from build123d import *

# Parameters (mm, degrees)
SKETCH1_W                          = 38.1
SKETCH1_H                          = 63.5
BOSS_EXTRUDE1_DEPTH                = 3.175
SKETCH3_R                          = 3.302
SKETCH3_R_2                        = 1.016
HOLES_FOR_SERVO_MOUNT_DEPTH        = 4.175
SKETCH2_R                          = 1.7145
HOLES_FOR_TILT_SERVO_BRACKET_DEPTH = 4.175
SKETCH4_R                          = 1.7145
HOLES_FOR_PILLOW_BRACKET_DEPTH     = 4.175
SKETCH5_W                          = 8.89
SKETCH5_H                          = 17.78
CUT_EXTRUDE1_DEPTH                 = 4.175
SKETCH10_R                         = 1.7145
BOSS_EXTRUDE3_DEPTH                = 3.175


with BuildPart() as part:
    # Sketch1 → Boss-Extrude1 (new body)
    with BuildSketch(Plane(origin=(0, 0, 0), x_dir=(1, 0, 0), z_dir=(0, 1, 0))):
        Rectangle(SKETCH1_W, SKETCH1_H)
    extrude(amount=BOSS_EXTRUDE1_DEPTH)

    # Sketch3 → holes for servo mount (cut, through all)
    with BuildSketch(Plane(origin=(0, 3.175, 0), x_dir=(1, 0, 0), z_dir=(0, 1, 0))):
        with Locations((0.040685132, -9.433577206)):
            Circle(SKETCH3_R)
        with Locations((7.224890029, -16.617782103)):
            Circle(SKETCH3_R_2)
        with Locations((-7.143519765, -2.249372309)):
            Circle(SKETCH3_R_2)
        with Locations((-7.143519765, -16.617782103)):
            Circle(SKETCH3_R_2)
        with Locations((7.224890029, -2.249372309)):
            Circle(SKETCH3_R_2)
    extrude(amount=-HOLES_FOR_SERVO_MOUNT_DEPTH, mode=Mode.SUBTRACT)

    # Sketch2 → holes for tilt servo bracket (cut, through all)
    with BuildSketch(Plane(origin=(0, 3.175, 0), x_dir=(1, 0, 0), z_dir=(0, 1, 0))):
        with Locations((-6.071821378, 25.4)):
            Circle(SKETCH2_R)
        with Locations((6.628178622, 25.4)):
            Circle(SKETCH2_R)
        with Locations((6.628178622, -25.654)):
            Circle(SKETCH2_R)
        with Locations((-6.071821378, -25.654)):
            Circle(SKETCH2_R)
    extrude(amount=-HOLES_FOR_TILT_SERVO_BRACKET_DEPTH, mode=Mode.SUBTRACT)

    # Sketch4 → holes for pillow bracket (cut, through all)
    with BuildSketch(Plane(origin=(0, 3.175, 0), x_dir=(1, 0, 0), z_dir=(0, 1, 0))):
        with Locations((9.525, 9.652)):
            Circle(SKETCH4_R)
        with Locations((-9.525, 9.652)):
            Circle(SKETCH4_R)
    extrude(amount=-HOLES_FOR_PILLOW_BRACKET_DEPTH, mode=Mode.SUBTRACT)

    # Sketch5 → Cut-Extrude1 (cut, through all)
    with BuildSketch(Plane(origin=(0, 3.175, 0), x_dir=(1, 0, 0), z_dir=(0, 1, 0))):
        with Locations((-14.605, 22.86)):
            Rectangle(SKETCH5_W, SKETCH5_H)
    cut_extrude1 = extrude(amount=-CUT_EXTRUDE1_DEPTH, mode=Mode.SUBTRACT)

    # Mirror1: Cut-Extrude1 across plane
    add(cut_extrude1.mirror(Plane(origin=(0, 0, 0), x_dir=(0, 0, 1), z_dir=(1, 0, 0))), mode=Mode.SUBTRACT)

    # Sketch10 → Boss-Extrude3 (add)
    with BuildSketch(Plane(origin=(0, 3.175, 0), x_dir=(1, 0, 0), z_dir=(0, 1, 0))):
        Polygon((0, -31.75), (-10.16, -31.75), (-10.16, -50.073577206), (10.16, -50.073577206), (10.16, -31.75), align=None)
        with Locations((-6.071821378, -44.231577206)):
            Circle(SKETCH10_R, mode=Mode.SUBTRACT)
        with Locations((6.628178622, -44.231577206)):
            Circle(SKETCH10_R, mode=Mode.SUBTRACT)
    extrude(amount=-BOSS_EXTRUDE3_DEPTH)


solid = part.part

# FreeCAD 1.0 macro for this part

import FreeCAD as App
import Part
import Sketcher

V = App.Vector
Q = App.Units.Quantity

doc = App.newDocument("Part")
params = doc.addObject("Spreadsheet::Sheet", "Params")
for row, (alias, value) in enumerate([
    ("sketch1_width", "1.5 in"),
    ("sketch1_height", "2.5 in"),
    ("pad1_length", "0.125 in"),
    ("sketch2_diameter", "0.26 in"),
    ("sketch2_diameter2", "0.08 in"),
    ("sketch3_diameter", "0.135 in"),
    ("sketch4_diameter", "0.135 in"),
    ("sketch5_height", "0.7 in"),
    ("sketch5_width", "0.35 in"),
    ("sketch6_diameter", "0.135 in"),
    ("sketch6_width", "0.8 in"),
    ("pad2_length", "0.125 in"),
], start=1):
    params.set(f"A{row}", alias)
    params.set(f"B{row}", "=" + value)
    params.setAlias(f"B{row}", alias)

body = doc.addObject("PartDesign::Body", "Body")

# Sketch on XZ plane
sketch1 = body.newObject("Sketcher::SketchObject", "Sketch")
sketch1.AttachmentSupport = (doc.getObject("XZ_Plane"), [""])
sketch1.MapMode = "FlatFace"
sketch1.addGeometry(Part.LineSegment(V(-19, -32, 0), V(-19, 32, 0)), False)
sketch1.addGeometry(Part.LineSegment(V(-19, 32, 0), V(19, 32, 0)), False)
sketch1.addGeometry(Part.LineSegment(V(19, 32, 0), V(19, -32, 0)), False)
sketch1.addGeometry(Part.LineSegment(V(19, -32, 0), V(-19, -32, 0)), False)
sketch1.addConstraint(Sketcher.Constraint("Coincident", 0, 2, 1, 1))
sketch1.addConstraint(Sketcher.Constraint("Coincident", 1, 2, 2, 1))
sketch1.addConstraint(Sketcher.Constraint("Coincident", 2, 2, 3, 1))
sketch1.addConstraint(Sketcher.Constraint("Coincident", 3, 2, 0, 1))
sketch1.addConstraint(Sketcher.Constraint("Vertical", 0))
sketch1.addConstraint(Sketcher.Constraint("Horizontal", 1))
sketch1.addConstraint(Sketcher.Constraint("Vertical", 2))
sketch1.addConstraint(Sketcher.Constraint("Horizontal", 3))
sketch1.addConstraint(Sketcher.Constraint("Symmetric", 0, 2, 2, 2, -1, 1))
sketch1.addConstraint(Sketcher.Constraint("DistanceX", 1, 1, 1, 2, Q("1.5 in")))
sketch1.addConstraint(Sketcher.Constraint("DistanceY", 0, 1, 0, 2, Q("2.5 in")))
sketch1.setExpression("Constraints[9]", "Params.sketch1_width")
sketch1.setExpression("Constraints[10]", "Params.sketch1_height")
pad1 = body.newObject("PartDesign::Pad", "Pad")
pad1.Profile = sketch1
pad1.setExpression("Length", "Params.pad1_length")
pad1.Reversed = True

# Sketch on XZ plane
sketch2 = body.newObject("Sketcher::SketchObject", "Sketch001")
sketch2.AttachmentSupport = (doc.getObject("XZ_Plane"), [""])
sketch2.MapMode = "FlatFace"
sketch2.AttachmentOffset = App.Placement(V(0, 0, -0.125 * 25.4), App.Rotation())
sketch2.addGeometry(Part.Circle(V(0, 9.4, 0), V(0, 0, 1), 3.3), False)
sketch2.addGeometry(Part.Circle(V(7.2, 16.6, 0), V(0, 0, 1), 1), False)
sketch2.addGeometry(Part.Circle(V(-7.1, 2.2, 0), V(0, 0, 1), 1), False)
sketch2.addGeometry(Part.Circle(V(-7.1, 16.6, 0), V(0, 0, 1), 1), False)
sketch2.addGeometry(Part.Circle(V(7.2, 2.2, 0), V(0, 0, 1), 1), False)
sketch2.addConstraint(Sketcher.Constraint("Equal", 1, 2))
sketch2.addConstraint(Sketcher.Constraint("Equal", 2, 3))
sketch2.addConstraint(Sketcher.Constraint("Equal", 3, 4))
sketch2.addConstraint(Sketcher.Constraint("Horizontal", 1, 3, 3, 3))
sketch2.addConstraint(Sketcher.Constraint("Horizontal", 2, 3, 4, 3))
sketch2.addConstraint(Sketcher.Constraint("Vertical", 2, 3, 3, 3))
sketch2.addConstraint(Sketcher.Constraint("Vertical", 1, 3, 4, 3))
sketch2.addConstraint(Sketcher.Constraint("Diameter", 0, Q("0.26 in")))
sketch2.addConstraint(Sketcher.Constraint("Diameter", 1, Q("0.08 in")))
sketch2.addConstraint(Sketcher.Constraint("DistanceX", -1, 1, 1, 3, Q("7.22489 mm")))
sketch2.addConstraint(Sketcher.Constraint("DistanceX", 2, 3, -1, 1, Q("7.14352 mm")))
sketch2.addConstraint(Sketcher.Constraint("DistanceY", 2, 3, 1, 3, Q("14.36841 mm")))
sketch2.addConstraint(Sketcher.Constraint("DistanceX", -1, 1, 0, 3, Q("0.040685 mm")))
sketch2.addConstraint(Sketcher.Constraint("DistanceY", -1, 1, 0, 3, Q("9.433577 mm")))
sketch2.addConstraint(Sketcher.Constraint("DistanceY", -1, 1, 1, 3, Q("16.617782 mm")))
sketch2.setExpression("Constraints[7]", "Params.sketch2_diameter")
sketch2.setExpression("Constraints[8]", "Params.sketch2_diameter2")
pocket1 = body.newObject("PartDesign::Pocket", "Pocket")
pocket1.Profile = sketch2
pocket1.Type = "ThroughAll"
pocket1.Reversed = True

# Sketch on XZ plane
sketch3 = body.newObject("Sketcher::SketchObject", "Sketch002")
sketch3.AttachmentSupport = (doc.getObject("XZ_Plane"), [""])
sketch3.MapMode = "FlatFace"
sketch3.AttachmentOffset = App.Placement(V(0, 0, -0.125 * 25.4), App.Rotation())
sketch3.addGeometry(Part.Circle(V(-6.1, -25.4, 0), V(0, 0, 1), 1.7), False)
sketch3.addGeometry(Part.Circle(V(6.6, -25.4, 0), V(0, 0, 1), 1.7), False)
sketch3.addGeometry(Part.Circle(V(6.6, 25.7, 0), V(0, 0, 1), 1.7), False)
sketch3.addGeometry(Part.Circle(V(-6.1, 25.7, 0), V(0, 0, 1), 1.7), False)
sketch3.addConstraint(Sketcher.Constraint("Equal", 0, 1))
sketch3.addConstraint(Sketcher.Constraint("Equal", 1, 2))
sketch3.addConstraint(Sketcher.Constraint("Equal", 2, 3))
sketch3.addConstraint(Sketcher.Constraint("Horizontal", 0, 3, 1, 3))
sketch3.addConstraint(Sketcher.Constraint("Horizontal", 2, 3, 3, 3))
sketch3.addConstraint(Sketcher.Constraint("Vertical", 1, 3, 2, 3))
sketch3.addConstraint(Sketcher.Constraint("Vertical", 0, 3, 3, 3))
sketch3.addConstraint(Sketcher.Constraint("Diameter", 0, Q("0.135 in")))
sketch3.addConstraint(Sketcher.Constraint("DistanceY", 0, 3, -1, 1, Q("1 in")))
sketch3.addConstraint(Sketcher.Constraint("DistanceX", 0, 3, 1, 3, Q("0.5 in")))
sketch3.addConstraint(Sketcher.Constraint("DistanceY", -1, 1, 2, 3, Q("1.01 in")))
sketch3.addConstraint(Sketcher.Constraint("DistanceX", 0, 3, -1, 1, Q("6.071821 mm")))
sketch3.setExpression("Constraints[7]", "Params.sketch3_diameter")
pocket2 = body.newObject("PartDesign::Pocket", "Pocket001")
pocket2.Profile = sketch3
pocket2.Type = "ThroughAll"
pocket2.Reversed = True

# Sketch on XZ plane
sketch4 = body.newObject("Sketcher::SketchObject", "Sketch003")
sketch4.AttachmentSupport = (doc.getObject("XZ_Plane"), [""])
sketch4.MapMode = "FlatFace"
sketch4.AttachmentOffset = App.Placement(V(0, 0, -0.125 * 25.4), App.Rotation())
sketch4.addGeometry(Part.Circle(V(9.5, -9.7, 0), V(0, 0, 1), 1.7), False)
sketch4.addGeometry(Part.Circle(V(-9.5, -9.7, 0), V(0, 0, 1), 1.7), False)
sketch4.addConstraint(Sketcher.Constraint("Equal", 0, 1))
sketch4.addConstraint(Sketcher.Constraint("Symmetric", 0, 3, 1, 3, -2))
sketch4.addConstraint(Sketcher.Constraint("Diameter", 0, Q("0.135 in")))
sketch4.addConstraint(Sketcher.Constraint("DistanceY", 0, 3, -1, 1, Q("0.38 in")))
sketch4.addConstraint(Sketcher.Constraint("DistanceX", 1, 3, 0, 3, Q("0.75 in")))
sketch4.setExpression("Constraints[2]", "Params.sketch4_diameter")
pocket3 = body.newObject("PartDesign::Pocket", "Pocket002")
pocket3.Profile = sketch4
pocket3.Type = "ThroughAll"
pocket3.Reversed = True

# Sketch on XZ plane
sketch5 = body.newObject("Sketcher::SketchObject", "Sketch004")
sketch5.AttachmentSupport = (doc.getObject("XZ_Plane"), [""])
sketch5.MapMode = "FlatFace"
sketch5.AttachmentOffset = App.Placement(V(0, 0, -0.125 * 25.4), App.Rotation())
sketch5.addGeometry(Part.LineSegment(V(-19, -32, 0), V(-19, -14, 0)), False)
sketch5.addGeometry(Part.LineSegment(V(-19, -14, 0), V(-10, -14, 0)), False)
sketch5.addGeometry(Part.LineSegment(V(-10, -14, 0), V(-10, -32, 0)), False)
sketch5.addGeometry(Part.LineSegment(V(-10, -32, 0), V(-19, -32, 0)), False)
sketch5.addConstraint(Sketcher.Constraint("Coincident", 0, 2, 1, 1))
sketch5.addConstraint(Sketcher.Constraint("Coincident", 1, 2, 2, 1))
sketch5.addConstraint(Sketcher.Constraint("Coincident", 2, 2, 3, 1))
sketch5.addConstraint(Sketcher.Constraint("Coincident", 3, 2, 0, 1))
sketch5.addConstraint(Sketcher.Constraint("Vertical", 0))
sketch5.addConstraint(Sketcher.Constraint("Horizontal", 1))
sketch5.addConstraint(Sketcher.Constraint("Vertical", 2))
sketch5.addConstraint(Sketcher.Constraint("Horizontal", 3))
sketch5.addConstraint(Sketcher.Constraint("DistanceY", 0, 1, 0, 2, Q("0.7 in")))
sketch5.addConstraint(Sketcher.Constraint("DistanceX", 1, 1, 1, 2, Q("0.35 in")))
sketch5.addConstraint(Sketcher.Constraint("DistanceX", 1, 2, -1, 1, Q("0.4 in")))
sketch5.addConstraint(Sketcher.Constraint("DistanceY", 0, 2, -1, 1, Q("0.55 in")))
sketch5.setExpression("Constraints[8]", "Params.sketch5_height")
sketch5.setExpression("Constraints[9]", "Params.sketch5_width")
pocket4 = body.newObject("PartDesign::Pocket", "Pocket003")
pocket4.Profile = sketch5
pocket4.Type = "ThroughAll"
pocket4.Reversed = True
doc.recompute()

mirrored = body.newObject("PartDesign::Mirrored", "Mirrored")
mirrored.Originals = [pocket4]
mirrored.MirrorPlane = (doc.getObject("YZ_Plane"), [""])
body.Tip = mirrored

# Sketch on XZ plane
sketch6 = body.newObject("Sketcher::SketchObject", "Sketch005")
sketch6.AttachmentSupport = (doc.getObject("XZ_Plane"), [""])
sketch6.MapMode = "FlatFace"
sketch6.AttachmentOffset = App.Placement(V(0, 0, -0.125 * 25.4), App.Rotation())
sketch6.addGeometry(Part.LineSegment(V(-10.2, 31.8, 0), V(-10.2, 50.1, 0)), False)
sketch6.addGeometry(Part.LineSegment(V(-10.2, 50.1, 0), V(10.2, 50.1, 0)), False)
sketch6.addGeometry(Part.LineSegment(V(10.2, 50.1, 0), V(10.2, 31.8, 0)), False)
sketch6.addGeometry(Part.LineSegment(V(10.2, 31.8, 0), V(-10.2, 31.8, 0)), False)
sketch6.addGeometry(Part.Circle(V(-6.1, 44.2, 0), V(0, 0, 1), 1.7), False)
sketch6.addGeometry(Part.Circle(V(6.6, 44.2, 0), V(0, 0, 1), 1.7), False)
sketch6.addConstraint(Sketcher.Constraint("Coincident", 0, 2, 1, 1))
sketch6.addConstraint(Sketcher.Constraint("Coincident", 1, 2, 2, 1))
sketch6.addConstraint(Sketcher.Constraint("Coincident", 2, 2, 3, 1))
sketch6.addConstraint(Sketcher.Constraint("Coincident", 3, 2, 0, 1))
sketch6.addConstraint(Sketcher.Constraint("Vertical", 0))
sketch6.addConstraint(Sketcher.Constraint("Horizontal", 1))
sketch6.addConstraint(Sketcher.Constraint("Vertical", 2))
sketch6.addConstraint(Sketcher.Constraint("Horizontal", 3))
sketch6.addConstraint(Sketcher.Constraint("Equal", 4, 5))
sketch6.addConstraint(Sketcher.Constraint("Horizontal", 4, 3, 5, 3))
sketch6.addConstraint(Sketcher.Constraint("Diameter", 4, Q("0.135 in")))
sketch6.addConstraint(Sketcher.Constraint("DistanceX", 1, 1, 1, 2, Q("0.8 in")))
sketch6.addConstraint(Sketcher.Constraint("DistanceX", 0, 2, -1, 1, Q("0.4 in")))
sketch6.addConstraint(Sketcher.Constraint("DistanceX", 4, 3, 5, 3, Q("0.5 in")))
sketch6.addConstraint(Sketcher.Constraint("DistanceY", -1, 1, 2, 2, Q("1.25 in")))
sketch6.addConstraint(Sketcher.Constraint("DistanceY", 4, 3, 0, 2, Q("0.23 in")))
sketch6.addConstraint(Sketcher.Constraint("DistanceY", 0, 1, 0, 2, Q("18.323577 mm")))
sketch6.addConstraint(Sketcher.Constraint("DistanceX", 4, 3, -1, 1, Q("6.071821 mm")))
sketch6.setExpression("Constraints[10]", "Params.sketch6_diameter")
sketch6.setExpression("Constraints[11]", "Params.sketch6_width")
pad2 = body.newObject("PartDesign::Pad", "Pad001")
pad2.Profile = sketch6
pad2.setExpression("Length", "Params.pad2_length")

doc.recompute()
